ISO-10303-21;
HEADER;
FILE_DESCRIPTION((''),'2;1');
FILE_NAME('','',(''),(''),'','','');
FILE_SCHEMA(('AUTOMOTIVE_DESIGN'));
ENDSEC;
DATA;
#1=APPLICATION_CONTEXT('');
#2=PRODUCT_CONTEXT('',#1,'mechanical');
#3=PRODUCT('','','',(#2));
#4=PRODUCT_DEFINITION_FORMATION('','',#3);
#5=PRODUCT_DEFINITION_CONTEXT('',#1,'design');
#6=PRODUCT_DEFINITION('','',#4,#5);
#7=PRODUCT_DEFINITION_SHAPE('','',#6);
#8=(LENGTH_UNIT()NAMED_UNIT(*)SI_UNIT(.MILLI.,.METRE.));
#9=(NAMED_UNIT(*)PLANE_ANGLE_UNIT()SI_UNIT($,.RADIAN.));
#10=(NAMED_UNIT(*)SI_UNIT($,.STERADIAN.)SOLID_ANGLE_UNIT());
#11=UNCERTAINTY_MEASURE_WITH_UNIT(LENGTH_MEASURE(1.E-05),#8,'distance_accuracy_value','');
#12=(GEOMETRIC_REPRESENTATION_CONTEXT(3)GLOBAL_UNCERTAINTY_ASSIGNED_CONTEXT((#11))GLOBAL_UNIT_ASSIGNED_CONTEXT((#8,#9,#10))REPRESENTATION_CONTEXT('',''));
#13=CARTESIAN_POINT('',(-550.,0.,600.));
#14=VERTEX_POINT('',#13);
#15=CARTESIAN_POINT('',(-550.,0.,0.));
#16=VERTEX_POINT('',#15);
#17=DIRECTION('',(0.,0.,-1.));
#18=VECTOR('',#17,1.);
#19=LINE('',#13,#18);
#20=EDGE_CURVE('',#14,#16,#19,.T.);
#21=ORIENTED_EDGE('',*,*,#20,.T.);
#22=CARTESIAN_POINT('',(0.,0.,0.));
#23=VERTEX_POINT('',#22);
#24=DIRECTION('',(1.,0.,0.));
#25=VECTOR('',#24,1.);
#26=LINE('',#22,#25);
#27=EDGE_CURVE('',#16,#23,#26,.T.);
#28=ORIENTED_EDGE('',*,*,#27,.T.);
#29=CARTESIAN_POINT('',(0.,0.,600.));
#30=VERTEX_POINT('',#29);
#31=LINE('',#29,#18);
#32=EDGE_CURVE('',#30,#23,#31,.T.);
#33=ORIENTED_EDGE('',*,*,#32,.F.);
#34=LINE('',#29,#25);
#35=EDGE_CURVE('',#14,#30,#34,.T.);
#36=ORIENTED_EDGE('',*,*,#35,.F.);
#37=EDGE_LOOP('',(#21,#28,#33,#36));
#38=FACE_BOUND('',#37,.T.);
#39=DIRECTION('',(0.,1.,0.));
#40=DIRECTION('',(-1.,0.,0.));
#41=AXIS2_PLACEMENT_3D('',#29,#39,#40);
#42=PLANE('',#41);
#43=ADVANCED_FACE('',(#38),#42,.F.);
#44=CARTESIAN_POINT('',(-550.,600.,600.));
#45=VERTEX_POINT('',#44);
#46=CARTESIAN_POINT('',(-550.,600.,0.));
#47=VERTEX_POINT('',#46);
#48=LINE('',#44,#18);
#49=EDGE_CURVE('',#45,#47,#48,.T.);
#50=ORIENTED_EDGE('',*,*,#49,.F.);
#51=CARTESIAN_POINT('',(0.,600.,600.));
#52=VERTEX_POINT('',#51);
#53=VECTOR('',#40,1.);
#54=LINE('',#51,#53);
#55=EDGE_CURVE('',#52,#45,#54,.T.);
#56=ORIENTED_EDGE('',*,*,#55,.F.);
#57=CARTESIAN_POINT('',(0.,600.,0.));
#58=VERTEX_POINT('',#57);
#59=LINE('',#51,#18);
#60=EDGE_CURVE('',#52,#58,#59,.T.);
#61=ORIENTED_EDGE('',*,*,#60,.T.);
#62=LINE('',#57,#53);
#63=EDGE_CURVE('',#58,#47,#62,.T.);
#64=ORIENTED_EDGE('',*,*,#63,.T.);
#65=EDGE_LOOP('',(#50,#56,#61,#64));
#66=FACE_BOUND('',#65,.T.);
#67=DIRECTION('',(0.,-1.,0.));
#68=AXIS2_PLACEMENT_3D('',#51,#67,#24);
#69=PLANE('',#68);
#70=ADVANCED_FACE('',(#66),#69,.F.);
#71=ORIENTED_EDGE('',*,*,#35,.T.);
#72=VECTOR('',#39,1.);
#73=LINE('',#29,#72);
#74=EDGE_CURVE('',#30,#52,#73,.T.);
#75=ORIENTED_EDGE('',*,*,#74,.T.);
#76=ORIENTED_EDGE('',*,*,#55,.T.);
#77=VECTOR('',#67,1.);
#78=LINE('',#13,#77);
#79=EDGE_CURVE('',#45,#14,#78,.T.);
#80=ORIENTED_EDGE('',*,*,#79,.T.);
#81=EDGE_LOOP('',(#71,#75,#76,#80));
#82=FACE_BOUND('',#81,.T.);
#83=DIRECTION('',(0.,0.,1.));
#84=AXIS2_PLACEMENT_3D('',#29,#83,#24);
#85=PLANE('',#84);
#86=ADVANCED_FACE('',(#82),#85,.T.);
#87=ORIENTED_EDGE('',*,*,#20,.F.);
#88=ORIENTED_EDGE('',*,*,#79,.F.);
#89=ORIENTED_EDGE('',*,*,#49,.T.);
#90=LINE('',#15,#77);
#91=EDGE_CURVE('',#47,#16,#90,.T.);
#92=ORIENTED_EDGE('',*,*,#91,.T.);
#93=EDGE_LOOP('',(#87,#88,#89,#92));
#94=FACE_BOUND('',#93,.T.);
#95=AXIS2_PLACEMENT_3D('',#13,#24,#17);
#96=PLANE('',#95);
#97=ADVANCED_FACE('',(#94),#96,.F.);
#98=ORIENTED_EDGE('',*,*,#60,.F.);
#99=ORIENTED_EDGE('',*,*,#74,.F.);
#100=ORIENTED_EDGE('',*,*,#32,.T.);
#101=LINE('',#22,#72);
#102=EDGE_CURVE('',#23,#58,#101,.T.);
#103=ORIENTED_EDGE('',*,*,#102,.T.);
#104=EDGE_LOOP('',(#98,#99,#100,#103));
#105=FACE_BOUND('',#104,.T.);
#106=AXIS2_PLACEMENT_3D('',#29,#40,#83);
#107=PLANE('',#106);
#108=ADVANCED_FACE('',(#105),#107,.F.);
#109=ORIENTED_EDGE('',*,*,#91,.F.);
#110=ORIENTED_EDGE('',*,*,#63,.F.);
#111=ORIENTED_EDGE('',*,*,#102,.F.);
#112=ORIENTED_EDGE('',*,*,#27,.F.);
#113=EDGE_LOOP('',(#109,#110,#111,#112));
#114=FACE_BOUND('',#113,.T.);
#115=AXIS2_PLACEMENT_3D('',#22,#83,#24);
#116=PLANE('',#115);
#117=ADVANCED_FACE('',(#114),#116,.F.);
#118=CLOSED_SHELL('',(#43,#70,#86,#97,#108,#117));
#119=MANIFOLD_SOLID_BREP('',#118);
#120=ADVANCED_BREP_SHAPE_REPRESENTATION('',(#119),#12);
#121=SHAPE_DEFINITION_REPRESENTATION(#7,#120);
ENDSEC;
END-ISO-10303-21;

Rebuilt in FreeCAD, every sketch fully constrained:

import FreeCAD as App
import Part
import Sketcher

V = App.Vector

doc = App.newDocument("Part")
params = doc.addObject("Spreadsheet::Sheet", "Params")
for row, (alias, value) in enumerate([
    ("sketch1_width", "550 mm"),
    ("sketch1_height", "600 mm"),
    ("pad1_length", "600 mm"),
], start=1):
    params.set(f"A{row}", alias)
    params.set(f"B{row}", "=" + value)
    params.setAlias(f"B{row}", alias)

body = doc.addObject("PartDesign::Body", "Body")

# Sketch on XY plane
sketch1 = body.newObject("Sketcher::SketchObject", "Sketch")
sketch1.AttachmentSupport = (doc.getObject("XY_Plane"), [""])
sketch1.MapMode = "FlatFace"
sketch1.addGeometry([
    Part.LineSegment(V(-550, 600, 0), V(-550, 0, 0)),
    Part.LineSegment(V(-550, 0, 0), V(0, 0, 0)),
    Part.LineSegment(V(0, 0, 0), V(0, 600, 0)),
    Part.LineSegment(V(0, 600, 0), V(-550, 600, 0)),
], False)
sketch1.addConstraint([
    Sketcher.Constraint("Coincident", 0, 2, 1, 1),
    Sketcher.Constraint("Coincident", 1, 2, 2, 1),
    Sketcher.Constraint("Coincident", 2, 2, 3, 1),
    Sketcher.Constraint("Coincident", 3, 2, 0, 1),
    Sketcher.Constraint("Vertical", 0),
    Sketcher.Constraint("Horizontal", 1),
    Sketcher.Constraint("Vertical", 2),
    Sketcher.Constraint("Horizontal", 3),
    Sketcher.Constraint("Coincident", 1, 2, -1, 1),
    Sketcher.Constraint("DistanceX", 1, 1, 1, 2, 550.0),
    Sketcher.Constraint("DistanceY", 0, 2, 0, 1, 600.0),
])
sketch1.setExpression("Constraints[9]", "Params.sketch1_width")
sketch1.setExpression("Constraints[10]", "Params.sketch1_height")
pad1 = body.newObject("PartDesign::Pad", "Pad")
pad1.Profile = sketch1
pad1.setExpression("Length", "Params.pad1_length")

doc.recompute()
